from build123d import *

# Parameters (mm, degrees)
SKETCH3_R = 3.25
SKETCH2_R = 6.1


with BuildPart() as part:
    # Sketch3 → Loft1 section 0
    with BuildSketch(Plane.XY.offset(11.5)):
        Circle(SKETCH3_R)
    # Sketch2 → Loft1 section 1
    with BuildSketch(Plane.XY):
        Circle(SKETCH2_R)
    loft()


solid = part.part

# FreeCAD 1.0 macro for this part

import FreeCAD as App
import Part
import Sketcher
Q = App.Units.Quantity

doc = App.newDocument("Part")
body = doc.addObject("PartDesign::Body", "Body")

sketch1 = body.newObject("Sketcher::SketchObject", "Sketch")
sketch1.AttachmentSupport = (doc.getObject("XY_Plane"), [""])
sketch1.MapMode = "FlatFace"
sketch1.AttachmentOffset = App.Placement(App.Vector(0, 0, 11.5), App.Rotation())
sketch1.addGeometry(Part.Circle(App.Vector(0, 0, 0), App.Vector(0, 0, 1), 3.2), False)
sketch1.addConstraint(Sketcher.Constraint("Coincident", 0, 3, -1, 1))
sketch1.addConstraint(Sketcher.Constraint("Diameter", 0, Q("6.5 mm")))

sketch2 = body.newObject("Sketcher::SketchObject", "Sketch001")
sketch2.AttachmentSupport = (doc.getObject("XY_Plane"), [""])
sketch2.MapMode = "FlatFace"
sketch2.addGeometry(Part.Circle(App.Vector(0, 0, 0), App.Vector(0, 0, 1), 6), False)
sketch2.addConstraint(Sketcher.Constraint("Coincident", 0, 3, -1, 1))
sketch2.addConstraint(Sketcher.Constraint("Diameter", 0, Q("12.2 mm")))

additiveloft = body.newObject("PartDesign::AdditiveLoft", "AdditiveLoft")
additiveloft.Profile = sketch1
additiveloft.Sections = [sketch2]

doc.recompute()
